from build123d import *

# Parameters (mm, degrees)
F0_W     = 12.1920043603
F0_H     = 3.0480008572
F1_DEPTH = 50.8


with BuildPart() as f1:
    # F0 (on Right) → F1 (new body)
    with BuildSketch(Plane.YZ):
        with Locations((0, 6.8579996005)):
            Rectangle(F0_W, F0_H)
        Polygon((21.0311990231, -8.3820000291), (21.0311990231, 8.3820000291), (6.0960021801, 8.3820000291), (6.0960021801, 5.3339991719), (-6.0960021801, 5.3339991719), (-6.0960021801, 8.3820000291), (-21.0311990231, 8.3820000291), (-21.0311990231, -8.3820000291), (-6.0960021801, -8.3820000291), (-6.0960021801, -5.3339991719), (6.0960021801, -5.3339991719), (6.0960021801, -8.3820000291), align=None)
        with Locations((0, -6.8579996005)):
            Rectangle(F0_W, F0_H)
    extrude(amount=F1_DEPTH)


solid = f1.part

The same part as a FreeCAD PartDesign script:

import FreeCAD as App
import Part
import Sketcher
from FreeCAD import Vector
Q = App.Units.Quantity

doc = App.newDocument("Part")
body = doc.addObject("PartDesign::Body", "Body")

# Sketch on YZ plane
sketch1 = body.newObject("Sketcher::SketchObject", "Sketch")
sketch1.AttachmentSupport = (doc.getObject("YZ_Plane"), [""])
sketch1.MapMode = "FlatFace"
sketch1.addGeometry([
    Part.LineSegment(Vector(-21, 8, 0), Vector(-21, -8, 0)),
    Part.LineSegment(Vector(-21, -8, 0), Vector(21, -8, 0)),
    Part.LineSegment(Vector(21, -8, 0), Vector(21, 8, 0)),
    Part.LineSegment(Vector(21, 8, 0), Vector(-21, 8, 0)),
], False)
sketch1.addConstraint([
    Sketcher.Constraint("Coincident", 0, 2, 1, 1),
    Sketcher.Constraint("Coincident", 1, 2, 2, 1),
    Sketcher.Constraint("Coincident", 2, 2, 3, 1),
    Sketcher.Constraint("Coincident", 3, 2, 0, 1),
    Sketcher.Constraint("Vertical", 0),
    Sketcher.Constraint("Horizontal", 1),
    Sketcher.Constraint("Vertical", 2),
    Sketcher.Constraint("Horizontal", 3),
    Sketcher.Constraint("Symmetric", 0, 2, 2, 2, -1, 1),
    Sketcher.Constraint("DistanceY", 0, 2, 0, 1, Q("0.66 in")),
    Sketcher.Constraint("DistanceX", 1, 1, 1, 2, Q("1.6559999 in")),
])
pad1 = body.newObject("PartDesign::Pad", "Pad")
pad1.Profile = sketch1
pad1.Length = Q("2 in")

doc.recompute()
